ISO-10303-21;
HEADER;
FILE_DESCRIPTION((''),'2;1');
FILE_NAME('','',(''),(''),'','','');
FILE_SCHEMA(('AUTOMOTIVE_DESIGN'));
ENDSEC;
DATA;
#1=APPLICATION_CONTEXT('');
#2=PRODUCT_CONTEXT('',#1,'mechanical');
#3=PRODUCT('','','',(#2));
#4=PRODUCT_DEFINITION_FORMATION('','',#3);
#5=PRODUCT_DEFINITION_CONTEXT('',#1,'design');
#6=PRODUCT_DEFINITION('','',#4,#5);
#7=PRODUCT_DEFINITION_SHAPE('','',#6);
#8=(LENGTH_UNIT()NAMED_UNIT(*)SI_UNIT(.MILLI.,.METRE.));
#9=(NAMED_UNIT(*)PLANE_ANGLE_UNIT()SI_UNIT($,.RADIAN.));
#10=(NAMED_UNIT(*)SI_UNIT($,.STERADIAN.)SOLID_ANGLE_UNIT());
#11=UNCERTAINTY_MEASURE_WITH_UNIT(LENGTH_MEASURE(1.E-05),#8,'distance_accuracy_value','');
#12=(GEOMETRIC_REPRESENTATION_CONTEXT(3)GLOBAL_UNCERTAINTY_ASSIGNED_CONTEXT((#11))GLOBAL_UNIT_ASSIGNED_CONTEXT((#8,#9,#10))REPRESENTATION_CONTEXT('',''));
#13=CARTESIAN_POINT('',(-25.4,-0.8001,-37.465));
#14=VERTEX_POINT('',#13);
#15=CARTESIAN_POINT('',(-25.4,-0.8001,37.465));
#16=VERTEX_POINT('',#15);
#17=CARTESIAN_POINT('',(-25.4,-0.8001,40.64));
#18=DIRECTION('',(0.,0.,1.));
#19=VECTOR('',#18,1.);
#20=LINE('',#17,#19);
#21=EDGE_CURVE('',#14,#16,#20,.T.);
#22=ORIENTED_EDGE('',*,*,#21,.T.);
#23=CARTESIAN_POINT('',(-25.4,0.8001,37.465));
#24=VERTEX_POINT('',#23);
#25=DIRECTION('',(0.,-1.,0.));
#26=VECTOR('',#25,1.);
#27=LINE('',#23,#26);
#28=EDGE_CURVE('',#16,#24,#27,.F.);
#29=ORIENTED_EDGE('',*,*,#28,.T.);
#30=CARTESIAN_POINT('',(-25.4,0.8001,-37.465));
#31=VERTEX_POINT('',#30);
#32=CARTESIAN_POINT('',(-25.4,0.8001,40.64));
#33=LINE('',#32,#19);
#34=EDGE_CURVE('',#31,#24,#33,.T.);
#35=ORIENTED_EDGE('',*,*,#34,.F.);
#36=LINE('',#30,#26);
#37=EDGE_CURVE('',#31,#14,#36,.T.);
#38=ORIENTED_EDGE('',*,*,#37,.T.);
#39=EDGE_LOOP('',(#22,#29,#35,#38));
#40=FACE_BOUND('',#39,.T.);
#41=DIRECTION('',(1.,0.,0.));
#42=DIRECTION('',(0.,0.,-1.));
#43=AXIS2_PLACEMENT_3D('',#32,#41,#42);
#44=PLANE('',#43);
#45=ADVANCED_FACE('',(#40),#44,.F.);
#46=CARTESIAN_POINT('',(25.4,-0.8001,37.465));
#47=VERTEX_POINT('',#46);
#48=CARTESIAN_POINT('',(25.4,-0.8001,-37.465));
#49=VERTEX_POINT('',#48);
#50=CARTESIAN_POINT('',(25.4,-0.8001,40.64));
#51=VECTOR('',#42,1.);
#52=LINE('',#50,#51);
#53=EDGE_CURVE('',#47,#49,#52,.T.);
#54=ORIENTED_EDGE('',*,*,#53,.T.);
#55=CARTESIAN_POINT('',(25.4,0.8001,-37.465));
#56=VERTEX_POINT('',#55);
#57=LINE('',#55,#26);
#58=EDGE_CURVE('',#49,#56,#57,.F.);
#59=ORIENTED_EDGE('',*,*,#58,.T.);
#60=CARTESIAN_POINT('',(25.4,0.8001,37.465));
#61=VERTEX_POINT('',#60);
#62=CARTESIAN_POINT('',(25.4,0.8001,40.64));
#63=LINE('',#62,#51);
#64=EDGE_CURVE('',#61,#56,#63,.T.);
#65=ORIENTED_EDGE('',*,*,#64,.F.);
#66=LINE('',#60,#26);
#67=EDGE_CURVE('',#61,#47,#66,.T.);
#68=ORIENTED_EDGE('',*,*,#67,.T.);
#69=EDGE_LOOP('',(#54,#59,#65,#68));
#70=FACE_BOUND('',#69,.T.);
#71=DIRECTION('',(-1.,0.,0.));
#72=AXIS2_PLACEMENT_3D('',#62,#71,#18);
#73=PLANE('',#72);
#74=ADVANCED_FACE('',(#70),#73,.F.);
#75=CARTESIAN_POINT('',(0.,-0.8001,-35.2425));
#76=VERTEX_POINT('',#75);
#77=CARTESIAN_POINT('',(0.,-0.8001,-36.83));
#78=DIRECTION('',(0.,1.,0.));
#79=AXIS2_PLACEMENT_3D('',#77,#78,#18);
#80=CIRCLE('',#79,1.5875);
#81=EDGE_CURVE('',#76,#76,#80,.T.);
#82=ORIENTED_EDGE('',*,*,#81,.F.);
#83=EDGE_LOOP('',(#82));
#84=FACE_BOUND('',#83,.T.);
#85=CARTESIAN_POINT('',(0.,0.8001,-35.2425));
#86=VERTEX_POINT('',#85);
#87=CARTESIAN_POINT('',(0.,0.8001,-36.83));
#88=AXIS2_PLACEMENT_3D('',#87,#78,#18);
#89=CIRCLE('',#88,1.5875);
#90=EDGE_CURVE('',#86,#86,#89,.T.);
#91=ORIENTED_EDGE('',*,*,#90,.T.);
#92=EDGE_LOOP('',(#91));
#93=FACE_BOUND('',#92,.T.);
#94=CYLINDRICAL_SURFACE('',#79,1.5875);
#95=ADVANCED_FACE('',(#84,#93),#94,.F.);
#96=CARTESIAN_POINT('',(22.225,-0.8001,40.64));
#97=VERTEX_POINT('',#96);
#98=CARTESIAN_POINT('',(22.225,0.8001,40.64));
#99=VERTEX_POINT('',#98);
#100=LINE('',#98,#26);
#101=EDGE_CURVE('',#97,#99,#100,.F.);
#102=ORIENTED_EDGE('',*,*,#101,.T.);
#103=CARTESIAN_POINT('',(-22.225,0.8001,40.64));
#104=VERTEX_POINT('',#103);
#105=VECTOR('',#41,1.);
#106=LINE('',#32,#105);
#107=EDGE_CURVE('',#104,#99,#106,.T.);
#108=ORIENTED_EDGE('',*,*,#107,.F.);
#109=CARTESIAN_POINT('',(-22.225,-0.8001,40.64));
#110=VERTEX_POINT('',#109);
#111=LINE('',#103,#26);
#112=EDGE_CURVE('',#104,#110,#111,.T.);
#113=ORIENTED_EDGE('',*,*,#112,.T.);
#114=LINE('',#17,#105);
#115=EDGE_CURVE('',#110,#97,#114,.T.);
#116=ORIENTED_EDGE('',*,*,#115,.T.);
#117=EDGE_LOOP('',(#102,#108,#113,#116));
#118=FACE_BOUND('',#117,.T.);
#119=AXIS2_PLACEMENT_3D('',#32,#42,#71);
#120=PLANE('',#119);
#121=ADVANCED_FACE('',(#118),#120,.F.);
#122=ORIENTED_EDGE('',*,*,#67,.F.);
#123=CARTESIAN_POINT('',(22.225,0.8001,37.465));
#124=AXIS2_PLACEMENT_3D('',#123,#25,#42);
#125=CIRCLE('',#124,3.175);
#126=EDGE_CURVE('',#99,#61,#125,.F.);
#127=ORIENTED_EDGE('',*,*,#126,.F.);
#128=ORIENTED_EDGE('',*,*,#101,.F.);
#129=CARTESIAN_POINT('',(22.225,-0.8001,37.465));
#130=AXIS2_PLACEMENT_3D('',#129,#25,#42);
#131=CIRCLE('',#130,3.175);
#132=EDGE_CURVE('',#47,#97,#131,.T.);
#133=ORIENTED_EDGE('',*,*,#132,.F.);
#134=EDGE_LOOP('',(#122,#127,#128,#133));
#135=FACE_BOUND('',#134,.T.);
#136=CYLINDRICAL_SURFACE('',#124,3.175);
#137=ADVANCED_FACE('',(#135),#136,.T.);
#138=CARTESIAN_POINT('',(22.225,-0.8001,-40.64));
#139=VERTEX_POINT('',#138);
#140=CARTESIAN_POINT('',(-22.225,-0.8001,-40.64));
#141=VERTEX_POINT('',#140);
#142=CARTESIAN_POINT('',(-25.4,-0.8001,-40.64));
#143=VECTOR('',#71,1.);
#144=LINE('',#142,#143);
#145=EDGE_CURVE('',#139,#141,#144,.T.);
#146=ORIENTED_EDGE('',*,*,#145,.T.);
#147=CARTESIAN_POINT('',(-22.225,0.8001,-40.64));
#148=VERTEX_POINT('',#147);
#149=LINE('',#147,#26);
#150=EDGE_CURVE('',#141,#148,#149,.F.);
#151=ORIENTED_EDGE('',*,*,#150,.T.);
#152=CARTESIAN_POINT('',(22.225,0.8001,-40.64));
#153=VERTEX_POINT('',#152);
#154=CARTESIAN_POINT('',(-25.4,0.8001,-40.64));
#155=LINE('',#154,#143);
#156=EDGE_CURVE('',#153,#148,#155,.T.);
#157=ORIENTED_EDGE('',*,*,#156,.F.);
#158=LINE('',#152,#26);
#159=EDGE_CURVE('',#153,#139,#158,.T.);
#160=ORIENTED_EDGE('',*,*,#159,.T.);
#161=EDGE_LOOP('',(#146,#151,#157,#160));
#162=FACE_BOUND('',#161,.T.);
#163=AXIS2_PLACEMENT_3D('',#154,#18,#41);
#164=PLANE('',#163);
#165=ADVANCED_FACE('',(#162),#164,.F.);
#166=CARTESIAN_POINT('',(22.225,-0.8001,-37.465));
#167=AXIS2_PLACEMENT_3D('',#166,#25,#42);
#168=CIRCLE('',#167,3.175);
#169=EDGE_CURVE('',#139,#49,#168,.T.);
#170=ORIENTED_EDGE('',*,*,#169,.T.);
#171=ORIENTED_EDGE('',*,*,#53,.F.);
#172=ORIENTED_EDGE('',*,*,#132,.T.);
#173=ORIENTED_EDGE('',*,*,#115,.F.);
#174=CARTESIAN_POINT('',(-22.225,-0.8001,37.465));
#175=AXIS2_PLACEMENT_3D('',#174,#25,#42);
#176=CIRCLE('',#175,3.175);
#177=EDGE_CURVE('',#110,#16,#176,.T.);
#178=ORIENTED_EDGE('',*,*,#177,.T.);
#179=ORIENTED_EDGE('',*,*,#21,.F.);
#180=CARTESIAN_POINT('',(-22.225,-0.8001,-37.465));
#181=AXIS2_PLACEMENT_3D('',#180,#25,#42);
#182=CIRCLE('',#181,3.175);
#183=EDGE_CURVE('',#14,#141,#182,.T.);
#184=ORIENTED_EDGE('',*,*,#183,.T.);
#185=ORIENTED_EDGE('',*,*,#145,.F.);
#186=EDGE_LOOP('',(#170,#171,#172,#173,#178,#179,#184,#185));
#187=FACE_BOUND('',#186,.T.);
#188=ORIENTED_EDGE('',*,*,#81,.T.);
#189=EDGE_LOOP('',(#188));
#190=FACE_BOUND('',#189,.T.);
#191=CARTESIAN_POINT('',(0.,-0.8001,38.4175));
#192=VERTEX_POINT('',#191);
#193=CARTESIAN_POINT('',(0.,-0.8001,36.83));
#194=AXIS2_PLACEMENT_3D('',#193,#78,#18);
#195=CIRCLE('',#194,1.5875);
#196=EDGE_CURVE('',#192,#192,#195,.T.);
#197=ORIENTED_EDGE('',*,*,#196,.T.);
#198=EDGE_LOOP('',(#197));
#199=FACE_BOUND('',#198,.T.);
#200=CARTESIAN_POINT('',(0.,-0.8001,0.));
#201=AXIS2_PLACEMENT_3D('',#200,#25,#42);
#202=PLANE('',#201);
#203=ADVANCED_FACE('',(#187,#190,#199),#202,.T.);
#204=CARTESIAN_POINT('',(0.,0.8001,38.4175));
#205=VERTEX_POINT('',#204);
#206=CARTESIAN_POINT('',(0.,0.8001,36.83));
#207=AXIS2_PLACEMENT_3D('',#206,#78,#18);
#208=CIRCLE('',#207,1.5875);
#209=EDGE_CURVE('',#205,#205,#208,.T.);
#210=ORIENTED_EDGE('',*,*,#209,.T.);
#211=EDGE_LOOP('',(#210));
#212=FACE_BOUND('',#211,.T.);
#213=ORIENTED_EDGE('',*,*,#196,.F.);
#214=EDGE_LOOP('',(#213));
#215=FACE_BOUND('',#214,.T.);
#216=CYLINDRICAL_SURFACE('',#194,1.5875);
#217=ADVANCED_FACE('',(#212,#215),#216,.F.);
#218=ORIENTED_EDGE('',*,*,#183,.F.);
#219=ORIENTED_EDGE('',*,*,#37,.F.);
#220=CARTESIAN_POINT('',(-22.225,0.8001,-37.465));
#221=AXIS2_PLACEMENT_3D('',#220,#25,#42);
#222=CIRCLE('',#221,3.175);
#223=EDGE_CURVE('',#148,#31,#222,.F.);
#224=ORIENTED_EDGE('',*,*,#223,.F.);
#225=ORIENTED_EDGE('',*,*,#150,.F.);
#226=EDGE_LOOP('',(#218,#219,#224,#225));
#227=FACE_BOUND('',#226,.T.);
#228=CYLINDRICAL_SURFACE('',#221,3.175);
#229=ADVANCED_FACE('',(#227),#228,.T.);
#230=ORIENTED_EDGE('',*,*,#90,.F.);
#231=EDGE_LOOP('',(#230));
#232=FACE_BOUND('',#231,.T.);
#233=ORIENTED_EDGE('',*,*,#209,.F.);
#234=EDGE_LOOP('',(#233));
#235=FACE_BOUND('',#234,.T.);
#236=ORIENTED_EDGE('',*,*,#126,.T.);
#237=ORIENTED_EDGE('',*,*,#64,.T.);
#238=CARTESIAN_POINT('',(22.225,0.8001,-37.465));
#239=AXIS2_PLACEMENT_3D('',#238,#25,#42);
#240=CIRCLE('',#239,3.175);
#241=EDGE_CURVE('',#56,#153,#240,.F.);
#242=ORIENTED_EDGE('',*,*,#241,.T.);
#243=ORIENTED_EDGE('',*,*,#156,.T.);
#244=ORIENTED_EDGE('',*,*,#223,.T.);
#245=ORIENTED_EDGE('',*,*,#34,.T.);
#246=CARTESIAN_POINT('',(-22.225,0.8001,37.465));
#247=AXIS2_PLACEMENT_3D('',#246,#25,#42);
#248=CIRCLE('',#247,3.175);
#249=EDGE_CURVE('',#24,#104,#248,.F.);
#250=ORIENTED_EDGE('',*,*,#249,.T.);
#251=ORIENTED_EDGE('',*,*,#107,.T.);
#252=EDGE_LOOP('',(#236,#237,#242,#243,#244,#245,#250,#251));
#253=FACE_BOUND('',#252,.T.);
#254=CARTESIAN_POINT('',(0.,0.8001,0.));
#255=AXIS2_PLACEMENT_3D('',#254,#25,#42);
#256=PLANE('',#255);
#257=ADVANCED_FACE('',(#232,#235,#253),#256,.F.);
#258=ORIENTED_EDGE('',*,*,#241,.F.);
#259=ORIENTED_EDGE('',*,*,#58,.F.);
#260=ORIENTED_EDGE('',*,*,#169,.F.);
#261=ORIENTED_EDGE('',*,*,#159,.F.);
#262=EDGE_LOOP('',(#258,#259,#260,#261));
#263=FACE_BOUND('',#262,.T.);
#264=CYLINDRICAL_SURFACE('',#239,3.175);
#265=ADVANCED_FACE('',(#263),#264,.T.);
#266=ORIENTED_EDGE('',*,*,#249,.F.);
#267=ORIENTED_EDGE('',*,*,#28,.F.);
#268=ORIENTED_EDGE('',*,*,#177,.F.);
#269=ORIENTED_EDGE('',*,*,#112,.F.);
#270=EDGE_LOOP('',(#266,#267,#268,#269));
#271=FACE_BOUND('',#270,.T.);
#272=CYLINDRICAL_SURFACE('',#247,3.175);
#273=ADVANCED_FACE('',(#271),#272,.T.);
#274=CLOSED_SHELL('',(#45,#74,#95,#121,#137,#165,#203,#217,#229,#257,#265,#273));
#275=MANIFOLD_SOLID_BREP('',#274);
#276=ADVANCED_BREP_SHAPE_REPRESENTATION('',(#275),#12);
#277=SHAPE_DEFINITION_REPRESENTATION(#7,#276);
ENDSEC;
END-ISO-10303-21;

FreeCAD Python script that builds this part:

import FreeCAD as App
import Part
import Sketcher

V = App.Vector
Q = App.Units.Quantity


def edges_at(feature, points):
    """Names of the edges that pass closest to the given points."""
    edges = feature.Shape.Edges
    near = lambda p: min(range(len(edges)), key=lambda i: edges[i].distToShape(Part.Vertex(*p))[0])
    return sorted({f"Edge{near(p) + 1}" for p in points})


def add_polygon(sketch, points):
    """Adds a closed chain of lines whose ends are joined by coincident constraints."""
    first, n = sketch.GeometryCount, len(points)
    for a, b in zip(points, points[1:] + points[:1]):
        sketch.addGeometry(Part.LineSegment(App.Vector(*a, 0), App.Vector(*b, 0)), False)
    for i in range(n):
        sketch.addConstraint(Sketcher.Constraint("Coincident", first + i, 2, first + (i + 1) % n, 1))

doc = App.newDocument("Part")
params = doc.addObject("Spreadsheet::Sheet", "Params")
for row, (alias, value) in enumerate([
    ("sketch1_width", "2 in"),
    ("sketch1_height", "3.2 in"),
    ("pad1_length", "0.063 in"),
    ("sketch2_diameter", "0.125 in"),
    ("fillet_radius", "0.125 in"),
], start=1):
    params.set(f"A{row}", alias)
    params.set(f"B{row}", "=" + value)
    params.setAlias(f"B{row}", alias)

body = doc.addObject("PartDesign::Body", "Body")

sketch1 = body.newObject("Sketcher::SketchObject", "Sketch")
sketch1.AttachmentSupport = (doc.getObject("XZ_Plane"), [""])
sketch1.MapMode = "FlatFace"
add_polygon(sketch1, [(-25, -41), (-25, 41), (25, 41), (25, -41)])
sketch1.addConstraint([
    Sketcher.Constraint("Vertical", 0),
    Sketcher.Constraint("Horizontal", 1),
    Sketcher.Constraint("Vertical", 2),
    Sketcher.Constraint("Horizontal", 3),
    Sketcher.Constraint("Symmetric", 0, 2, 2, 2, -1, 1),
    Sketcher.Constraint("DistanceX", 1, 1, 1, 2, Q("2 in")),
    Sketcher.Constraint("DistanceY", 0, 1, 0, 2, Q("3.2 in")),
])
sketch1.setExpression("Constraints[9]", "Params.sketch1_width")
sketch1.setExpression("Constraints[10]", "Params.sketch1_height")
pad1 = body.newObject("PartDesign::Pad", "Pad")
pad1.Profile = sketch1
pad1.setExpression("Length", "Params.pad1_length")
pad1.Midplane = True

sketch2 = body.newObject("Sketcher::SketchObject", "Sketch001")
sketch2.AttachmentSupport = (doc.getObject("XZ_Plane"), [""])
sketch2.MapMode = "FlatFace"
sketch2.AttachmentOffset = App.Placement(V(0, 0, -0.0315 * 25.4), App.Rotation())
sketch2.addGeometry([
    Part.Circle(V(0, -36.8, 0), V(0, 0, 1), 1.6),
    Part.Circle(V(0, 36.8, 0), V(0, 0, 1), 1.6),
], False)
sketch2.addConstraint([
    Sketcher.Constraint("Equal", 0, 1),
    Sketcher.Constraint("Symmetric", 0, 3, 1, 3, -1, 1),
    Sketcher.Constraint("PointOnObject", 0, 3, -2),
    Sketcher.Constraint("Diameter", 0, Q("0.125 in")),
    Sketcher.Constraint("DistanceY", 0, 3, 1, 3, Q("2.9 in")),
])
sketch2.setExpression("Constraints[3]", "Params.sketch2_diameter")
pocket1 = body.newObject("PartDesign::Pocket", "Pocket")
pocket1.Profile = sketch2
pocket1.Type = "ThroughAll"
pocket1.Reversed = True
doc.recompute()

fillet = body.newObject("PartDesign::Fillet", "Fillet")
fillet.Base = (pocket1, edges_at(pocket1, [
    (25.4, 0, 40.64),
    (-25.4, 0, 40.64),
    (-25.4, 0, -40.64),
    (25.4, 0, -40.64),
]))
fillet.setExpression("Radius", "Params.fillet_radius")

doc.recompute()
